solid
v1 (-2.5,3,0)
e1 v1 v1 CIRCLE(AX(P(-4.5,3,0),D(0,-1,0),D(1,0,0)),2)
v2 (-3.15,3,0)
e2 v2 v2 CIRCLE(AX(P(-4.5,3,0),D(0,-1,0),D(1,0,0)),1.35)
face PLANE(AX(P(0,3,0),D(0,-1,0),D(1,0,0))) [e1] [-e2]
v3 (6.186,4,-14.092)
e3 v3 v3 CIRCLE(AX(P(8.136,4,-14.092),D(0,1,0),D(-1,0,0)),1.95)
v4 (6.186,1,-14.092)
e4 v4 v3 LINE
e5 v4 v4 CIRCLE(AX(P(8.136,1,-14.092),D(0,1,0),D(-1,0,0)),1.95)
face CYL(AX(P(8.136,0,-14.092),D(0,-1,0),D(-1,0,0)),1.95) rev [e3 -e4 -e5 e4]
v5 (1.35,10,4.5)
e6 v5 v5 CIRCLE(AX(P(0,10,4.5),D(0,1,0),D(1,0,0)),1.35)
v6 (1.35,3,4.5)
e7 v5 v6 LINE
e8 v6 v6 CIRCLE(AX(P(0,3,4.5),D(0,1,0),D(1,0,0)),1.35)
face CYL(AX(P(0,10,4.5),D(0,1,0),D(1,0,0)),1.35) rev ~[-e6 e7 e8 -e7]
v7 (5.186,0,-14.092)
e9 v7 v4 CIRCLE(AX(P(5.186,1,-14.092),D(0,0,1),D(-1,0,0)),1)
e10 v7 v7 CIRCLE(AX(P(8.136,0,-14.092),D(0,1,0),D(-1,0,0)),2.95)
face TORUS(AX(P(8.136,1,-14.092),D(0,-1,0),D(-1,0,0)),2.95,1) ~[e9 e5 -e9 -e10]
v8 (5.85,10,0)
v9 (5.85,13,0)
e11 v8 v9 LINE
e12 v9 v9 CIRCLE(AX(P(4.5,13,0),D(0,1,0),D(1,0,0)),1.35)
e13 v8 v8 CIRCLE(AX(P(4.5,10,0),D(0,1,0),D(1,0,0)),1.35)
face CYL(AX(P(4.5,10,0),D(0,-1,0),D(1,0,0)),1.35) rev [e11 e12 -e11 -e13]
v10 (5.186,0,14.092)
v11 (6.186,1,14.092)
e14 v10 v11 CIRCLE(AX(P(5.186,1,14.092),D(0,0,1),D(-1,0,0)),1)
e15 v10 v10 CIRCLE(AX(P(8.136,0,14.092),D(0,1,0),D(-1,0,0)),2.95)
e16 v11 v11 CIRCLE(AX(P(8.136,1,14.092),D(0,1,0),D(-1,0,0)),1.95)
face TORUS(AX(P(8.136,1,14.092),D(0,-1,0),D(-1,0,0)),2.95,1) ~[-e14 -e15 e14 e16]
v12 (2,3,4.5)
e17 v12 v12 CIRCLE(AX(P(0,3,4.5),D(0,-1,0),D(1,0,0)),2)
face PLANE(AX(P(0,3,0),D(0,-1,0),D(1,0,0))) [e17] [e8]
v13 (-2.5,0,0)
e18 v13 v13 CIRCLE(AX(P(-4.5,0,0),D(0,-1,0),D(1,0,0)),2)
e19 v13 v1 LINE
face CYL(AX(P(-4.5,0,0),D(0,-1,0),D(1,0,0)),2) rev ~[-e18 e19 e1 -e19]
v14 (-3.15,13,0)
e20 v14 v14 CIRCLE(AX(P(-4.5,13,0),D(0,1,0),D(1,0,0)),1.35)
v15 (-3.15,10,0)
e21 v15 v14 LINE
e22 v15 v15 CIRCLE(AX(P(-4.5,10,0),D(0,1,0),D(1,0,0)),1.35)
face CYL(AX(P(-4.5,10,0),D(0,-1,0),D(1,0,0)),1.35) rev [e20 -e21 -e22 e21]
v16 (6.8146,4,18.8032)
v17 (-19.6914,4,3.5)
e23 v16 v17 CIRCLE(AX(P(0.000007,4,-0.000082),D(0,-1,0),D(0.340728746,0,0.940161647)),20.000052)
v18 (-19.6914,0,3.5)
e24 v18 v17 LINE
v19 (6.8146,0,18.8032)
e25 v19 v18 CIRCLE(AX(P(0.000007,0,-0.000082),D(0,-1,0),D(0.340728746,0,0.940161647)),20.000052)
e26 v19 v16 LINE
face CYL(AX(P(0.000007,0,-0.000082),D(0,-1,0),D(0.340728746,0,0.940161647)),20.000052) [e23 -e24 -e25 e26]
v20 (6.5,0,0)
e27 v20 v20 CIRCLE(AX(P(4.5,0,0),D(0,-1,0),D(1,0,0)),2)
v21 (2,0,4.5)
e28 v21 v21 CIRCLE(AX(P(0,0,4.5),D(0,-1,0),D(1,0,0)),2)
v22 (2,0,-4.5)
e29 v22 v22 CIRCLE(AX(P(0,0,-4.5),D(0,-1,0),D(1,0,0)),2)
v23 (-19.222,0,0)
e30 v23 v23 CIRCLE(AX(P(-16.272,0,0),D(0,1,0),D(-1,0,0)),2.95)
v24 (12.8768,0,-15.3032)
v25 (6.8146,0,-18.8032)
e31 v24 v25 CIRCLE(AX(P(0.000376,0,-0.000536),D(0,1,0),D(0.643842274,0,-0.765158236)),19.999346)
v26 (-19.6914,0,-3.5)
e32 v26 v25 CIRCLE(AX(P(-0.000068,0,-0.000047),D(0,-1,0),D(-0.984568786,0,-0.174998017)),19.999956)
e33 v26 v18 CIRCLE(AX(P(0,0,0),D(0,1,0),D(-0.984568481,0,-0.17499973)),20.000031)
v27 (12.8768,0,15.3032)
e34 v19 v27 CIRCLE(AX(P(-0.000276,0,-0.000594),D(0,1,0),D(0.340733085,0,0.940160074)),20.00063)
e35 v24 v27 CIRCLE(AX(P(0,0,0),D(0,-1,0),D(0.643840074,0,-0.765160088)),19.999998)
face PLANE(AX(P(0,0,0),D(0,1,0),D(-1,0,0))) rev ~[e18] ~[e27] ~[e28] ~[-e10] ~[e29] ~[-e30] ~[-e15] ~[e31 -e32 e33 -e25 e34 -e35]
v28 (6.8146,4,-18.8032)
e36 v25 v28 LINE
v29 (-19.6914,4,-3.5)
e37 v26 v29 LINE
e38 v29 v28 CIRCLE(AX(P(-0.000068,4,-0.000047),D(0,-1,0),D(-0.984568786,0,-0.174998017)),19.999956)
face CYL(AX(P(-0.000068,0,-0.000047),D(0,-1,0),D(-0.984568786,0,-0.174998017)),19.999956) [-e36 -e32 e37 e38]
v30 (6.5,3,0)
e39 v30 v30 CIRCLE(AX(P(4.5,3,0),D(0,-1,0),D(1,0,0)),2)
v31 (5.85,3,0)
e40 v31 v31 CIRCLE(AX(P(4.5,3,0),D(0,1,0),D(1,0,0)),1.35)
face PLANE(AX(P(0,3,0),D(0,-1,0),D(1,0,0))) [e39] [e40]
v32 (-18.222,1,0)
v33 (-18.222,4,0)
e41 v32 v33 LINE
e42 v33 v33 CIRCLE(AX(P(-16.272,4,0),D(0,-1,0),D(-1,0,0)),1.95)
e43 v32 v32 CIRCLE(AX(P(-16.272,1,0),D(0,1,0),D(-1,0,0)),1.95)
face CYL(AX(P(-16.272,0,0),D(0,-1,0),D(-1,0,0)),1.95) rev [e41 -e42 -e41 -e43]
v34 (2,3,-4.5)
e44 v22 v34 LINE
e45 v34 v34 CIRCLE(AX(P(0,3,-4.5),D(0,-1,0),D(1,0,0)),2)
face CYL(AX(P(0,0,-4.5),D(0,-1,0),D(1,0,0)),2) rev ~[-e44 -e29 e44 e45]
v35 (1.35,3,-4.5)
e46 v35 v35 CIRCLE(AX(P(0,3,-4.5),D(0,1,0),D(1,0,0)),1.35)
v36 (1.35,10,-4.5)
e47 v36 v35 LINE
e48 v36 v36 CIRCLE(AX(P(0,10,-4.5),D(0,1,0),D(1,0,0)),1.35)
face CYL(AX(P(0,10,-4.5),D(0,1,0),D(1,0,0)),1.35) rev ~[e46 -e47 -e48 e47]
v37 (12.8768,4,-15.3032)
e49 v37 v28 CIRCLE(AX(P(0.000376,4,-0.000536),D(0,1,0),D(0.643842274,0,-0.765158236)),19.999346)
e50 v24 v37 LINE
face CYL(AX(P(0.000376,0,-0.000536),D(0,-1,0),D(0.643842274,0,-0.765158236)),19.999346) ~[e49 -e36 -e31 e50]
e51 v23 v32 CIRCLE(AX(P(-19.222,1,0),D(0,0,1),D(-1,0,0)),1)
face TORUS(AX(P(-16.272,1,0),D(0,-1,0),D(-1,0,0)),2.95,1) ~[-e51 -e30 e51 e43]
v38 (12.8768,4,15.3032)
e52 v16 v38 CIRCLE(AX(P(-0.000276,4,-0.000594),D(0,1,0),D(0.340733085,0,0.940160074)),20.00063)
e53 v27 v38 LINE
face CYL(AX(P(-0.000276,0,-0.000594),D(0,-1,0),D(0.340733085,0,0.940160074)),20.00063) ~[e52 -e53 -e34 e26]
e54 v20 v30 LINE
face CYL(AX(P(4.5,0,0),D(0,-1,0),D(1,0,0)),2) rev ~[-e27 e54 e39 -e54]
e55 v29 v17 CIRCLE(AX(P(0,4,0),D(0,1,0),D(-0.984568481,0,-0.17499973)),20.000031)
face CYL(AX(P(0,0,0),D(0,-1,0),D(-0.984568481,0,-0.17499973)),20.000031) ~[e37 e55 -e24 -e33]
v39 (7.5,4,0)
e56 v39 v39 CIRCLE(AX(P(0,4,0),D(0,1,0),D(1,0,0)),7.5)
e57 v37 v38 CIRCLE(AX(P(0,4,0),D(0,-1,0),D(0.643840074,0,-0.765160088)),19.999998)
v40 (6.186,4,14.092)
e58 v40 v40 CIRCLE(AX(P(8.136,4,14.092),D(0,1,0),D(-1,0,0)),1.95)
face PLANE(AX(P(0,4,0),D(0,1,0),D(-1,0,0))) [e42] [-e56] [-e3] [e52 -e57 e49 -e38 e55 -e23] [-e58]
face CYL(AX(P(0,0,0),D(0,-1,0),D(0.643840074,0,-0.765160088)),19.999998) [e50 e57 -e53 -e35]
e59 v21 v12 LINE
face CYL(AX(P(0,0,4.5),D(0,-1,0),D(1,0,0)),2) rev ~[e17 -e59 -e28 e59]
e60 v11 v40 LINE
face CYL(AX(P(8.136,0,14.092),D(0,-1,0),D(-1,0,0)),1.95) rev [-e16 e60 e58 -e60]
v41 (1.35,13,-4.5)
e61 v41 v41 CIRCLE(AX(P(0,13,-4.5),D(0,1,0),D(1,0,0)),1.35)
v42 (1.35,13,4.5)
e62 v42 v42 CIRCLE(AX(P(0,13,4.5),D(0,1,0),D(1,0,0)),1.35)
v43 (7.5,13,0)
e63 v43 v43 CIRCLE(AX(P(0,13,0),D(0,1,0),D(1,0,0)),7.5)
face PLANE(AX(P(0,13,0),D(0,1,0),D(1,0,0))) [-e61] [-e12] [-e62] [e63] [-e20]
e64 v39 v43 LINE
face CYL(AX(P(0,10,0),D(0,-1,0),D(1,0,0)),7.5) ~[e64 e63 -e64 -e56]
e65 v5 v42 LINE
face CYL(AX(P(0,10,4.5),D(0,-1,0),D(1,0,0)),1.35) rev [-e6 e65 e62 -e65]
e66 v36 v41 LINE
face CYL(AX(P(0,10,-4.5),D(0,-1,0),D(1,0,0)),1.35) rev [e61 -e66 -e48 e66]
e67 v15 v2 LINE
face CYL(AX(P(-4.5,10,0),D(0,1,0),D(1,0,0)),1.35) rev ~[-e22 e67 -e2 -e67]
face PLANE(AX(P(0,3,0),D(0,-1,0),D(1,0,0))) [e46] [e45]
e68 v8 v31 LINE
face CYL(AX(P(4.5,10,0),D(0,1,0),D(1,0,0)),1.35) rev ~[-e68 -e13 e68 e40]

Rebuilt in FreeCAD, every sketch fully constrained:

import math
import FreeCAD as App
import Part
import Sketcher

V = App.Vector
Q = App.Units.Quantity


def edges_at(feature, points):
    """Names of the edges that pass closest to the given points."""
    edges = feature.Shape.Edges
    near = lambda p: min(range(len(edges)), key=lambda i: edges[i].distToShape(Part.Vertex(*p))[0])
    return sorted({f"Edge{near(p) + 1}" for p in points})

doc = App.newDocument("Part")
body = doc.addObject("PartDesign::Body", "Body")

sketch1 = body.newObject("Sketcher::SketchObject", "Sketch")
sketch1.AttachmentSupport = (doc.getObject("XZ_Plane"), [""])
sketch1.MapMode = "FlatFace"
sketch1.addGeometry([
    Part.LineSegment(V(-19.6914, 3.5, 0), V(-12, 3.5, 0)),
    Part.ArcOfCircle(Part.Circle(V(0, 0, 0), V(0, 0, 1), 12.499993), math.radians(76.260249), math.radians(163.739795)),
    Part.LineSegment(V(2.9689, 12.1423, 0), V(6.8146, 18.8032, 0)),
    Part.ArcOfCircle(Part.Circle(V(0, 0, 0), V(0, 0, 1), 20.000031), math.radians(49.921236), math.radians(70.078621)),
    Part.LineSegment(V(12.8768, 15.3032, 0), V(9.0311, 8.6423, 0)),
    Part.ArcOfCircle(Part.Circle(V(0, 0, 0), V(0, 0, 1), 12.500005), math.radians(-43.739744), math.radians(43.739744)),
    Part.LineSegment(V(9.0311, -8.6423, 0), V(12.8768, -15.3032, 0)),
    Part.ArcOfCircle(Part.Circle(V(0, 0, 0), V(0, 0, 1), 19.999978), math.radians(-70.078621), math.radians(-49.921236)),
    Part.LineSegment(V(6.8146, -18.8032, 0), V(2.9689, -12.1423, 0)),
    Part.ArcOfCircle(Part.Circle(V(0, 0, 0), V(0, 0, 1), 12.500005), math.radians(-163.739795), math.radians(-76.260249)),
    Part.LineSegment(V(-12, -3.5, 0), V(-19.6914, -3.5, 0)),
    Part.ArcOfCircle(Part.Circle(V(0, 0, 0), V(0, 0, 1), 20.000031), math.radians(169.921358), math.radians(190.078642)),
    Part.Circle(V(8.136, -14.092, 0), V(0, 0, 1), 1.95),
    Part.Circle(V(8.136, 14.092, 0), V(0, 0, 1), 1.95),
    Part.Circle(V(-16.272, 0, 0), V(0, 0, 1), 1.95),
], False)
sketch1.addConstraint([
    Sketcher.Constraint("Coincident", 0, 2, 1, 2),
    Sketcher.Constraint("Coincident", 1, 1, 2, 1),
    Sketcher.Constraint("Coincident", 2, 2, 3, 2),
    Sketcher.Constraint("Coincident", 3, 1, 4, 1),
    Sketcher.Constraint("Coincident", 4, 2, 5, 2),
    Sketcher.Constraint("Coincident", 5, 1, 6, 1),
    Sketcher.Constraint("Coincident", 6, 2, 7, 2),
    Sketcher.Constraint("Coincident", 7, 1, 8, 1),
    Sketcher.Constraint("Coincident", 8, 2, 9, 2),
    Sketcher.Constraint("Coincident", 9, 1, 10, 1),
    Sketcher.Constraint("Coincident", 10, 2, 11, 2),
    Sketcher.Constraint("Coincident", 11, 1, 0, 1),
    Sketcher.Constraint("Horizontal", 0),
    Sketcher.Constraint("Horizontal", 10),
    Sketcher.Constraint("Coincident", 1, 3, -1, 1),
    Sketcher.Constraint("Coincident", 3, 3, -1, 1),
    Sketcher.Constraint("Coincident", 5, 3, -1, 1),
    Sketcher.Constraint("Coincident", 7, 3, -1, 1),
    Sketcher.Constraint("Coincident", 9, 3, -1, 1),
    Sketcher.Constraint("Coincident", 11, 3, -1, 1),
    Sketcher.Constraint("Equal", 1, 5),
    Sketcher.Constraint("Equal", 3, 7),
    Sketcher.Constraint("Equal", 5, 9),
    Sketcher.Constraint("Equal", 7, 11),
    Sketcher.Constraint("Equal", 12, 13),
    Sketcher.Constraint("Equal", 13, 14),
    Sketcher.Constraint("Symmetric", 12, 3, 13, 3, -1),
    Sketcher.Constraint("PointOnObject", 14, 3, -1),
    Sketcher.Constraint("Parallel", 2, 4),
    Sketcher.Constraint("Parallel", 6, 8),
    Sketcher.Constraint("Vertical", 4, 2, 5, 1),
    Sketcher.Constraint("Vertical", 3, 1, 6, 2),
    Sketcher.Constraint("Vertical", 2, 2, 7, 1),
    Sketcher.Constraint("Vertical", 0, 2, 9, 1),
    Sketcher.Constraint("Equal", 2, 4),
    Sketcher.Constraint("Diameter", 12, 3.9),
    Sketcher.Constraint("Radius", 3, 20.0),
    Sketcher.Constraint("Radius", 1, 12.5),
    Sketcher.Constraint("Angle", 2, Q("59.9998 deg")),
    Sketcher.Constraint("DistanceX", 14, 3, -1, 1, 16.272),
    Sketcher.Constraint("DistanceX", 0, 2, -1, 1, 12.0),
    Sketcher.Constraint("DistanceY", 3, 1, 2, 2, 3.5),
    Sketcher.Constraint("DistanceX", -1, 1, 12, 3, 8.136),
    Sketcher.Constraint("DistanceY", 12, 3, -1, 1, 14.092),
])
pad1 = body.newObject("PartDesign::Pad", "Pad")
pad1.Profile = sketch1
pad1.Length = 4
pad1.Reversed = True

sketch2 = body.newObject("Sketcher::SketchObject", "Sketch001")
sketch2.AttachmentSupport = (doc.getObject("XZ_Plane"), [""])
sketch2.MapMode = "FlatFace"
sketch2.AttachmentOffset = App.Placement(V(0, 0, -4), App.Rotation())
sketch2.addGeometry(Part.Circle(V(0, 0, 0), V(0, 0, 1), 7.5), False)
sketch2.addConstraint([
    Sketcher.Constraint("Coincident", 0, 3, -1, 1),
    Sketcher.Constraint("Diameter", 0, 15.0),
])
pad2 = body.newObject("PartDesign::Pad", "Pad001")
pad2.Profile = sketch2
pad2.Length = 6
pad2.Reversed = True

sketch3 = body.newObject("Sketcher::SketchObject", "Sketch002")
sketch3.AttachmentSupport = (doc.getObject("XZ_Plane"), [""])
sketch3.MapMode = "FlatFace"
sketch3.AttachmentOffset = App.Placement(V(0, 0, -10), App.Rotation())
sketch3.addGeometry([
    Part.Circle(V(-4.5, 0, 0), V(0, 0, 1), 1.35),
    Part.Circle(V(0, 4.5, 0), V(0, 0, 1), 1.35),
    Part.Circle(V(4.5, 0, 0), V(0, 0, 1), 1.35),
    Part.Circle(V(0, -4.5, 0), V(0, 0, 1), 1.35),
], False)
sketch3.addConstraint([
    Sketcher.Constraint("Equal", 0, 1),
    Sketcher.Constraint("Equal", 1, 2),
    Sketcher.Constraint("Equal", 2, 3),
    Sketcher.Constraint("Symmetric", 0, 3, 2, 3, -1, 1),
    Sketcher.Constraint("Symmetric", 1, 3, 3, 3, -1, 1),
    Sketcher.Constraint("PointOnObject", 0, 3, -1),
    Sketcher.Constraint("PointOnObject", 1, 3, -2),
    Sketcher.Constraint("Diameter", 0, 2.7),
    Sketcher.Constraint("DistanceX", 0, 3, 2, 3, 9.0),
    Sketcher.Constraint("DistanceY", 3, 3, 1, 3, 9.0),
])
pocket1 = body.newObject("PartDesign::Pocket", "Pocket")
pocket1.Profile = sketch3
pocket1.Type = "ThroughAll"
pocket1.Reversed = True

sketch4 = body.newObject("Sketcher::SketchObject", "Sketch003")
sketch4.AttachmentSupport = (doc.getObject("XZ_Plane"), [""])
sketch4.MapMode = "FlatFace"
sketch4.addGeometry([
    Part.Circle(V(-4.5, 0, 0), V(0, 0, 1), 2),
    Part.Circle(V(-4.5, 0, 0), V(0, 0, 1), 1.35),
    Part.Circle(V(0, -4.5, 0), V(0, 0, 1), 2),
    Part.Circle(V(4.5, 0, 0), V(0, 0, 1), 2),
    Part.Circle(V(0, 4.5, 0), V(0, 0, 1), 2),
], False)
sketch4.addConstraint([
    Sketcher.Constraint("Coincident", 1, 3, 0, 3),
    Sketcher.Constraint("Equal", 0, 2),
    Sketcher.Constraint("Equal", 2, 3),
    Sketcher.Constraint("Equal", 3, 4),
    Sketcher.Constraint("Symmetric", 0, 3, 3, 3, -1, 1),
    Sketcher.Constraint("Symmetric", 2, 3, 4, 3, -1, 1),
    Sketcher.Constraint("PointOnObject", 0, 3, -1),
    Sketcher.Constraint("PointOnObject", 2, 3, -2),
    Sketcher.Constraint("Diameter", 0, 4.0),
    Sketcher.Constraint("Diameter", 1, 2.7),
    Sketcher.Constraint("DistanceX", 0, 3, 3, 3, 9.0),
    Sketcher.Constraint("DistanceY", 2, 3, 4, 3, 9.0),
])
pocket2 = body.newObject("PartDesign::Pocket", "Pocket001")
pocket2.Profile = sketch4
pocket2.Length = 3

sketch5 = body.newObject("Sketcher::SketchObject", "Sketch004")
sketch5.AttachmentSupport = (doc.getObject("XZ_Plane"), [""])
sketch5.MapMode = "FlatFace"
sketch5.addGeometry([
    Part.LineSegment(V(-12, -3.5, 0), V(-19.6914, -3.5, 0)),
    Part.ArcOfCircle(Part.Circle(V(0, 0, 0), V(0, 0, 1), 19.999978), math.radians(-169.921358), math.radians(-70.078621)),
    Part.LineSegment(V(6.8146, -18.8032, 0), V(2.9689, -12.1423, 0)),
    Part.ArcOfCircle(Part.Circle(V(0, 0, 0), V(0, 0, 1), 12.499993), math.radians(-163.739795), math.radians(-76.260249)),
    Part.LineSegment(V(2.9689, 12.1423, 0), V(6.8146, 18.8032, 0)),
    Part.ArcOfCircle(Part.Circle(V(0, 0, 0), V(0, 0, 1), 20.000031), math.radians(70.078621), math.radians(169.921358)),
    Part.LineSegment(V(-19.6914, 3.5, 0), V(-12, 3.5, 0)),
    Part.ArcOfCircle(Part.Circle(V(0, 0, 0), V(0, 0, 1), 12.500005), math.radians(76.260249), math.radians(163.739795)),
    Part.ArcOfCircle(Part.Circle(V(0, 0, 0), V(0, 0, 1), 19.999998), math.radians(-49.921236), math.radians(49.921236)),
    Part.LineSegment(V(12.8768, 15.3032, 0), V(9.0311, 8.6423, 0)),
    Part.ArcOfCircle(Part.Circle(V(0, 0, 0), V(0, 0, 1), 12.500005), math.radians(-43.739744), math.radians(43.739744)),
    Part.LineSegment(V(9.0311, -8.6423, 0), V(12.8768, -15.3032, 0)),
], False)
sketch5.addConstraint([
    Sketcher.Constraint("Coincident", 0, 2, 1, 1),
    Sketcher.Constraint("Coincident", 1, 2, 2, 1),
    Sketcher.Constraint("Coincident", 2, 2, 3, 2),
    Sketcher.Constraint("Coincident", 3, 1, 0, 1),
    Sketcher.Constraint("Coincident", 4, 2, 5, 1),
    Sketcher.Constraint("Coincident", 5, 2, 6, 1),
    Sketcher.Constraint("Coincident", 6, 2, 7, 2),
    Sketcher.Constraint("Coincident", 7, 1, 4, 1),
    Sketcher.Constraint("Coincident", 8, 2, 9, 1),
    Sketcher.Constraint("Coincident", 9, 2, 10, 2),
    Sketcher.Constraint("Coincident", 10, 1, 11, 1),
    Sketcher.Constraint("Coincident", 11, 2, 8, 1),
    Sketcher.Constraint("Horizontal", 0),
    Sketcher.Constraint("Horizontal", 6),
    Sketcher.Constraint("Coincident", 1, 3, -1, 1),
    Sketcher.Constraint("Coincident", 3, 3, -1, 1),
    Sketcher.Constraint("Coincident", 5, 3, -1, 1),
    Sketcher.Constraint("Coincident", 7, 3, -1, 1),
    Sketcher.Constraint("Coincident", 8, 3, -1, 1),
    Sketcher.Constraint("Coincident", 10, 3, -1, 1),
    Sketcher.Constraint("Equal", 1, 5),
    Sketcher.Constraint("Equal", 3, 7),
    Sketcher.Constraint("Equal", 5, 8),
    Sketcher.Constraint("Equal", 7, 10),
    Sketcher.Constraint("Parallel", 4, 9),
    Sketcher.Constraint("Parallel", 2, 11),
    Sketcher.Constraint("Vertical", 1, 2, 4, 2),
    Sketcher.Constraint("Vertical", 0, 2, 5, 2),
    Sketcher.Constraint("Vertical", 2, 2, 7, 1),
    Sketcher.Constraint("Vertical", 9, 2, 10, 1),
    Sketcher.Constraint("Equal", 4, 9),
    Sketcher.Constraint("Radius", 1, 20.0),
    Sketcher.Constraint("Radius", 3, 12.5),
    Sketcher.Constraint("Angle", 2, Q("120.0002 deg")),
    Sketcher.Constraint("DistanceX", 3, 1, -1, 1, 12.0),
    Sketcher.Constraint("DistanceY", 8, 2, 4, 2, 3.5),
])
pad3 = body.newObject("PartDesign::Pad", "Pad002")
pad3.Profile = sketch5
pad3.Length = 4
pad3.Reversed = True
doc.recompute()

fillet = body.newObject("PartDesign::Fillet", "Fillet")
fillet.Base = (pad3, edges_at(pad3, [(10.086, 0, 14.092), (-14.322, 0, 0), (10.086, 0, -14.092)]))
fillet.Radius = 1

sketch6 = body.newObject("Sketcher::SketchObject", "Sketch005")
sketch6.AttachmentSupport = (doc.getObject("XZ_Plane"), [""])
sketch6.MapMode = "FlatFace"
sketch6.AttachmentOffset = App.Placement(V(0, 0, -10), App.Rotation())
sketch6.addGeometry([
    Part.Circle(V(0, 0, 0), V(0, 0, 1), 7.5),
    Part.Circle(V(0, 4.5, 0), V(0, 0, 1), 1.35),
    Part.Circle(V(-4.5, 0, 0), V(0, 0, 1), 1.35),
    Part.Circle(V(4.5, 0, 0), V(0, 0, 1), 1.35),
    Part.Circle(V(0, -4.5, 0), V(0, 0, 1), 1.35),
], False)
sketch6.addConstraint([
    Sketcher.Constraint("Coincident", 0, 3, -1, 1),
    Sketcher.Constraint("Equal", 1, 2),
    Sketcher.Constraint("Equal", 2, 3),
    Sketcher.Constraint("Equal", 3, 4),
    Sketcher.Constraint("Symmetric", 2, 3, 3, 3, -1, 1),
    Sketcher.Constraint("Symmetric", 1, 3, 4, 3, -1, 1),
    Sketcher.Constraint("PointOnObject", 1, 3, -2),
    Sketcher.Constraint("PointOnObject", 2, 3, -1),
    Sketcher.Constraint("Diameter", 0, 15.0),
    Sketcher.Constraint("Diameter", 1, 2.7),
    Sketcher.Constraint("DistanceX", 2, 3, 3, 3, 9.0),
    Sketcher.Constraint("DistanceY", 4, 3, 1, 3, 9.0),
])
pad4 = body.newObject("PartDesign::Pad", "Pad003")
pad4.Profile = sketch6
pad4.Length = 3
pad4.Reversed = True

doc.recompute()
